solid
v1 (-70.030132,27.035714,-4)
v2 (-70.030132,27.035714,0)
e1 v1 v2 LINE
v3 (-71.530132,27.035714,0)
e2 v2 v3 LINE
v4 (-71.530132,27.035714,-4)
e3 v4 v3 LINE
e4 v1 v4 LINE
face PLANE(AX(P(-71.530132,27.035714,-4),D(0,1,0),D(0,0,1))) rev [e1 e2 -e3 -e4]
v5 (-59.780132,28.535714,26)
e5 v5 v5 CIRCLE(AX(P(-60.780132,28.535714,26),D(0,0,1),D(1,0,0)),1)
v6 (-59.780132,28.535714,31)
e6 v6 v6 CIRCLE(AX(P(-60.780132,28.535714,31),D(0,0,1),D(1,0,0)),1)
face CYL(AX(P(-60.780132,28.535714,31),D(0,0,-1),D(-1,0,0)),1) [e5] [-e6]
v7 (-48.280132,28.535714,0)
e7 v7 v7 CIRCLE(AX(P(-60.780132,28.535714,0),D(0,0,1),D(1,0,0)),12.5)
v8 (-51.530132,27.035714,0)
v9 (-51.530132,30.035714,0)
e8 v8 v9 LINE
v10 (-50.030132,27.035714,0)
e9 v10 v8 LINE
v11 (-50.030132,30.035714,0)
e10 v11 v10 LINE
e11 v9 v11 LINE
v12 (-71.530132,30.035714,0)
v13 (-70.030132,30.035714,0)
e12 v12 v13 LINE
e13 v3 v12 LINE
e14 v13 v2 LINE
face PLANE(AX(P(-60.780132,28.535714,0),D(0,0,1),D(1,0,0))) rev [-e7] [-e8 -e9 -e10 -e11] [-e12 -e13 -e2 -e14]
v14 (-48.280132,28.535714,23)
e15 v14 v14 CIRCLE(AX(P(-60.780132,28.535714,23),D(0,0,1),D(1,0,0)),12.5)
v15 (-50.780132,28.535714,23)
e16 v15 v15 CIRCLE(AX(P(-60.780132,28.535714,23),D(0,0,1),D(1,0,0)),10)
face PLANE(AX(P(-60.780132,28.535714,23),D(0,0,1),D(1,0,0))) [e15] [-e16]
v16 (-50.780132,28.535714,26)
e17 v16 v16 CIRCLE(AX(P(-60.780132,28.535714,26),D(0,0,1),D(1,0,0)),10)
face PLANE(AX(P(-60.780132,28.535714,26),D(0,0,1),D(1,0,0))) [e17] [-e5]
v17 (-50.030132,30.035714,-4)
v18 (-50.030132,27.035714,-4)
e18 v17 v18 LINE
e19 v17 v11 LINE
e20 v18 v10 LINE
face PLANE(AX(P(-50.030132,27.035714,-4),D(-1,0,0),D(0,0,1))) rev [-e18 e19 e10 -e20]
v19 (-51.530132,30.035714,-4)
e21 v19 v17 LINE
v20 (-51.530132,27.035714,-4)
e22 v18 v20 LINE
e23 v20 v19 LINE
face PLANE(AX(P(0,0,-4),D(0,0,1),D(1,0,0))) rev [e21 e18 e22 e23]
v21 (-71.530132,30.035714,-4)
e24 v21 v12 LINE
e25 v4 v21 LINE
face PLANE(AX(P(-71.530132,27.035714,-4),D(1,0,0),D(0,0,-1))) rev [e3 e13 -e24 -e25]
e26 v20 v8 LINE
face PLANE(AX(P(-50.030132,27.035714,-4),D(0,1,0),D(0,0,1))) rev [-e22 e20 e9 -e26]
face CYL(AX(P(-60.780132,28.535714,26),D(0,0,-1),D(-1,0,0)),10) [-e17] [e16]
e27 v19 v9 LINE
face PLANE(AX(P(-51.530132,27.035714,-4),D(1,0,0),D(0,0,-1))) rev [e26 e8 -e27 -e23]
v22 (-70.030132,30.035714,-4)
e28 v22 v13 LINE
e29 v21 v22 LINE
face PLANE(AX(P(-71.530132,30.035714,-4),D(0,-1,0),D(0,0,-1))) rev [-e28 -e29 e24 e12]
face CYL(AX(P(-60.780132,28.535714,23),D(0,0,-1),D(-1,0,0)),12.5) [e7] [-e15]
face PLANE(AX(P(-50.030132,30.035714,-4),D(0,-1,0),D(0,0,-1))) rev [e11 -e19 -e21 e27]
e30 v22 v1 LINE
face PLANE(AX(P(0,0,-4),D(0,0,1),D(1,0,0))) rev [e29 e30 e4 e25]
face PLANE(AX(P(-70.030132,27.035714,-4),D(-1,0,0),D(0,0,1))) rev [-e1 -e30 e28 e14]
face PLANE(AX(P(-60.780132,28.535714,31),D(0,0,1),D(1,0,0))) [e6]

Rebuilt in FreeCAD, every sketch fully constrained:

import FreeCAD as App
import Part
import Sketcher
Q = App.Units.Quantity

doc = App.newDocument("Part")
params = doc.addObject("Spreadsheet::Sheet", "Params")
for row, (alias, value) in enumerate([
    ("sketch1_diameter", "25 mm"),
    ("pad1_length", "23 mm"),
    ("sketch2_diameter", "20 mm"),
    ("pad2_length", "3 mm"),
    ("sketch3_diameter", "2 mm"),
    ("pad3_length", "5 mm"),
    ("sketch4_height", "3 mm"),
    ("sketch4_width", "1.5 mm"),
    ("pad4_length", "4 mm"),
], start=1):
    params.set(f"A{row}", alias)
    params.set(f"B{row}", "=" + value)
    params.setAlias(f"B{row}", alias)

body = doc.addObject("PartDesign::Body", "Body")

# Sketch on XY plane
sketch1 = body.newObject("Sketcher::SketchObject", "Sketch")
sketch1.AttachmentSupport = (doc.getObject("XY_Plane"), [""])
sketch1.MapMode = "FlatFace"
sketch1.addGeometry(Part.Circle(App.Vector(-61, 29, 0), App.Vector(0, 0, 1), 12), False)
sketch1.addConstraint([
    Sketcher.Constraint("Diameter", 0, Q("25 mm")),
    Sketcher.Constraint("DistanceX", 0, 3, -1, 1, Q("60.780132 mm")),
    Sketcher.Constraint("DistanceY", -1, 1, 0, 3, Q("28.535714 mm")),
])
sketch1.setExpression("Constraints[0]", "Params.sketch1_diameter")
pad1 = body.newObject("PartDesign::Pad", "Pad")
pad1.Profile = sketch1
pad1.setExpression("Length", "Params.pad1_length")

# Sketch on XY plane
sketch2 = body.newObject("Sketcher::SketchObject", "Sketch001")
sketch2.AttachmentSupport = (doc.getObject("XY_Plane"), [""])
sketch2.MapMode = "FlatFace"
sketch2.AttachmentOffset = App.Placement(App.Vector(0, 0, 23), App.Rotation())
sketch2.addGeometry(Part.Circle(App.Vector(-61, 29, 0), App.Vector(0, 0, 1), 10), False)
sketch2.addConstraint([
    Sketcher.Constraint("Diameter", 0, Q("20 mm")),
    Sketcher.Constraint("DistanceX", 0, 3, -1, 1, Q("60.780132 mm")),
    Sketcher.Constraint("DistanceY", -1, 1, 0, 3, Q("28.535714 mm")),
])
sketch2.setExpression("Constraints[0]", "Params.sketch2_diameter")
pad2 = body.newObject("PartDesign::Pad", "Pad001")
pad2.Profile = sketch2
pad2.setExpression("Length", "Params.pad2_length")

# Sketch on XY plane
sketch3 = body.newObject("Sketcher::SketchObject", "Sketch002")
sketch3.AttachmentSupport = (doc.getObject("XY_Plane"), [""])
sketch3.MapMode = "FlatFace"
sketch3.AttachmentOffset = App.Placement(App.Vector(0, 0, 26), App.Rotation())
sketch3.addGeometry(Part.Circle(App.Vector(-60.8, 28.5, 0), App.Vector(0, 0, 1), 1), False)
sketch3.addConstraint([
    Sketcher.Constraint("Diameter", 0, Q("2 mm")),
    Sketcher.Constraint("DistanceX", 0, 3, -1, 1, Q("60.780132 mm")),
    Sketcher.Constraint("DistanceY", -1, 1, 0, 3, Q("28.535714 mm")),
])
sketch3.setExpression("Constraints[0]", "Params.sketch3_diameter")
pad3 = body.newObject("PartDesign::Pad", "Pad002")
pad3.Profile = sketch3
pad3.setExpression("Length", "Params.pad3_length")

# Sketch on XY plane
sketch4 = body.newObject("Sketcher::SketchObject", "Sketch003")
sketch4.AttachmentSupport = (doc.getObject("XY_Plane"), [""])
sketch4.MapMode = "FlatFace"
sketch4.addGeometry([
    Part.LineSegment(App.Vector(-70, 30, 0), App.Vector(-70, 27, 0)),  # 0
    Part.LineSegment(App.Vector(-70, 27, 0), App.Vector(-71.5, 27, 0)),  # 1
    Part.LineSegment(App.Vector(-71.5, 27, 0), App.Vector(-71.5, 30, 0)),  # 2
    Part.LineSegment(App.Vector(-71.5, 30, 0), App.Vector(-70, 30, 0)),  # 3
    Part.LineSegment(App.Vector(-50, 30, 0), App.Vector(-50, 27, 0)),  # 4
    Part.LineSegment(App.Vector(-50, 27, 0), App.Vector(-51.5, 27, 0)),  # 5
    Part.LineSegment(App.Vector(-51.5, 27, 0), App.Vector(-51.5, 30, 0)),  # 6
    Part.LineSegment(App.Vector(-51.5, 30, 0), App.Vector(-50, 30, 0)),  # 7
], False)
sketch4.addConstraint([
    Sketcher.Constraint("Coincident", 0, 2, 1, 1),
    Sketcher.Constraint("Coincident", 1, 2, 2, 1),
    Sketcher.Constraint("Coincident", 2, 2, 3, 1),
    Sketcher.Constraint("Coincident", 3, 2, 0, 1),
    Sketcher.Constraint("Coincident", 4, 2, 5, 1),
    Sketcher.Constraint("Coincident", 5, 2, 6, 1),
    Sketcher.Constraint("Coincident", 6, 2, 7, 1),
    Sketcher.Constraint("Coincident", 7, 2, 4, 1),
    Sketcher.Constraint("Vertical", 0),
    Sketcher.Constraint("Horizontal", 1),
    Sketcher.Constraint("Vertical", 2),
    Sketcher.Constraint("Horizontal", 3),
    Sketcher.Constraint("Vertical", 4),
    Sketcher.Constraint("Horizontal", 5),
    Sketcher.Constraint("Vertical", 6),
    Sketcher.Constraint("Horizontal", 7),
    Sketcher.Constraint("Horizontal", 1, 2, 4, 2),
    Sketcher.Constraint("Horizontal", 3, 2, 6, 2),
    Sketcher.Constraint("Equal", 3, 5),
    Sketcher.Constraint("DistanceY", 0, 2, 0, 1, Q("3 mm")),
    Sketcher.Constraint("DistanceX", 1, 2, 1, 1, Q("1.5 mm")),
    Sketcher.Constraint("DistanceX", 0, 2, 4, 2, Q("20 mm")),
    Sketcher.Constraint("DistanceX", 0, 2, -1, 1, Q("70.030132 mm")),
    Sketcher.Constraint("DistanceY", -1, 1, 0, 2, Q("27.035714 mm")),
])
sketch4.setExpression("Constraints[19]", "Params.sketch4_height")
sketch4.setExpression("Constraints[20]", "Params.sketch4_width")
pad4 = body.newObject("PartDesign::Pad", "Pad003")
pad4.Profile = sketch4
pad4.setExpression("Length", "Params.pad4_length")
pad4.Reversed = True

doc.recompute()
